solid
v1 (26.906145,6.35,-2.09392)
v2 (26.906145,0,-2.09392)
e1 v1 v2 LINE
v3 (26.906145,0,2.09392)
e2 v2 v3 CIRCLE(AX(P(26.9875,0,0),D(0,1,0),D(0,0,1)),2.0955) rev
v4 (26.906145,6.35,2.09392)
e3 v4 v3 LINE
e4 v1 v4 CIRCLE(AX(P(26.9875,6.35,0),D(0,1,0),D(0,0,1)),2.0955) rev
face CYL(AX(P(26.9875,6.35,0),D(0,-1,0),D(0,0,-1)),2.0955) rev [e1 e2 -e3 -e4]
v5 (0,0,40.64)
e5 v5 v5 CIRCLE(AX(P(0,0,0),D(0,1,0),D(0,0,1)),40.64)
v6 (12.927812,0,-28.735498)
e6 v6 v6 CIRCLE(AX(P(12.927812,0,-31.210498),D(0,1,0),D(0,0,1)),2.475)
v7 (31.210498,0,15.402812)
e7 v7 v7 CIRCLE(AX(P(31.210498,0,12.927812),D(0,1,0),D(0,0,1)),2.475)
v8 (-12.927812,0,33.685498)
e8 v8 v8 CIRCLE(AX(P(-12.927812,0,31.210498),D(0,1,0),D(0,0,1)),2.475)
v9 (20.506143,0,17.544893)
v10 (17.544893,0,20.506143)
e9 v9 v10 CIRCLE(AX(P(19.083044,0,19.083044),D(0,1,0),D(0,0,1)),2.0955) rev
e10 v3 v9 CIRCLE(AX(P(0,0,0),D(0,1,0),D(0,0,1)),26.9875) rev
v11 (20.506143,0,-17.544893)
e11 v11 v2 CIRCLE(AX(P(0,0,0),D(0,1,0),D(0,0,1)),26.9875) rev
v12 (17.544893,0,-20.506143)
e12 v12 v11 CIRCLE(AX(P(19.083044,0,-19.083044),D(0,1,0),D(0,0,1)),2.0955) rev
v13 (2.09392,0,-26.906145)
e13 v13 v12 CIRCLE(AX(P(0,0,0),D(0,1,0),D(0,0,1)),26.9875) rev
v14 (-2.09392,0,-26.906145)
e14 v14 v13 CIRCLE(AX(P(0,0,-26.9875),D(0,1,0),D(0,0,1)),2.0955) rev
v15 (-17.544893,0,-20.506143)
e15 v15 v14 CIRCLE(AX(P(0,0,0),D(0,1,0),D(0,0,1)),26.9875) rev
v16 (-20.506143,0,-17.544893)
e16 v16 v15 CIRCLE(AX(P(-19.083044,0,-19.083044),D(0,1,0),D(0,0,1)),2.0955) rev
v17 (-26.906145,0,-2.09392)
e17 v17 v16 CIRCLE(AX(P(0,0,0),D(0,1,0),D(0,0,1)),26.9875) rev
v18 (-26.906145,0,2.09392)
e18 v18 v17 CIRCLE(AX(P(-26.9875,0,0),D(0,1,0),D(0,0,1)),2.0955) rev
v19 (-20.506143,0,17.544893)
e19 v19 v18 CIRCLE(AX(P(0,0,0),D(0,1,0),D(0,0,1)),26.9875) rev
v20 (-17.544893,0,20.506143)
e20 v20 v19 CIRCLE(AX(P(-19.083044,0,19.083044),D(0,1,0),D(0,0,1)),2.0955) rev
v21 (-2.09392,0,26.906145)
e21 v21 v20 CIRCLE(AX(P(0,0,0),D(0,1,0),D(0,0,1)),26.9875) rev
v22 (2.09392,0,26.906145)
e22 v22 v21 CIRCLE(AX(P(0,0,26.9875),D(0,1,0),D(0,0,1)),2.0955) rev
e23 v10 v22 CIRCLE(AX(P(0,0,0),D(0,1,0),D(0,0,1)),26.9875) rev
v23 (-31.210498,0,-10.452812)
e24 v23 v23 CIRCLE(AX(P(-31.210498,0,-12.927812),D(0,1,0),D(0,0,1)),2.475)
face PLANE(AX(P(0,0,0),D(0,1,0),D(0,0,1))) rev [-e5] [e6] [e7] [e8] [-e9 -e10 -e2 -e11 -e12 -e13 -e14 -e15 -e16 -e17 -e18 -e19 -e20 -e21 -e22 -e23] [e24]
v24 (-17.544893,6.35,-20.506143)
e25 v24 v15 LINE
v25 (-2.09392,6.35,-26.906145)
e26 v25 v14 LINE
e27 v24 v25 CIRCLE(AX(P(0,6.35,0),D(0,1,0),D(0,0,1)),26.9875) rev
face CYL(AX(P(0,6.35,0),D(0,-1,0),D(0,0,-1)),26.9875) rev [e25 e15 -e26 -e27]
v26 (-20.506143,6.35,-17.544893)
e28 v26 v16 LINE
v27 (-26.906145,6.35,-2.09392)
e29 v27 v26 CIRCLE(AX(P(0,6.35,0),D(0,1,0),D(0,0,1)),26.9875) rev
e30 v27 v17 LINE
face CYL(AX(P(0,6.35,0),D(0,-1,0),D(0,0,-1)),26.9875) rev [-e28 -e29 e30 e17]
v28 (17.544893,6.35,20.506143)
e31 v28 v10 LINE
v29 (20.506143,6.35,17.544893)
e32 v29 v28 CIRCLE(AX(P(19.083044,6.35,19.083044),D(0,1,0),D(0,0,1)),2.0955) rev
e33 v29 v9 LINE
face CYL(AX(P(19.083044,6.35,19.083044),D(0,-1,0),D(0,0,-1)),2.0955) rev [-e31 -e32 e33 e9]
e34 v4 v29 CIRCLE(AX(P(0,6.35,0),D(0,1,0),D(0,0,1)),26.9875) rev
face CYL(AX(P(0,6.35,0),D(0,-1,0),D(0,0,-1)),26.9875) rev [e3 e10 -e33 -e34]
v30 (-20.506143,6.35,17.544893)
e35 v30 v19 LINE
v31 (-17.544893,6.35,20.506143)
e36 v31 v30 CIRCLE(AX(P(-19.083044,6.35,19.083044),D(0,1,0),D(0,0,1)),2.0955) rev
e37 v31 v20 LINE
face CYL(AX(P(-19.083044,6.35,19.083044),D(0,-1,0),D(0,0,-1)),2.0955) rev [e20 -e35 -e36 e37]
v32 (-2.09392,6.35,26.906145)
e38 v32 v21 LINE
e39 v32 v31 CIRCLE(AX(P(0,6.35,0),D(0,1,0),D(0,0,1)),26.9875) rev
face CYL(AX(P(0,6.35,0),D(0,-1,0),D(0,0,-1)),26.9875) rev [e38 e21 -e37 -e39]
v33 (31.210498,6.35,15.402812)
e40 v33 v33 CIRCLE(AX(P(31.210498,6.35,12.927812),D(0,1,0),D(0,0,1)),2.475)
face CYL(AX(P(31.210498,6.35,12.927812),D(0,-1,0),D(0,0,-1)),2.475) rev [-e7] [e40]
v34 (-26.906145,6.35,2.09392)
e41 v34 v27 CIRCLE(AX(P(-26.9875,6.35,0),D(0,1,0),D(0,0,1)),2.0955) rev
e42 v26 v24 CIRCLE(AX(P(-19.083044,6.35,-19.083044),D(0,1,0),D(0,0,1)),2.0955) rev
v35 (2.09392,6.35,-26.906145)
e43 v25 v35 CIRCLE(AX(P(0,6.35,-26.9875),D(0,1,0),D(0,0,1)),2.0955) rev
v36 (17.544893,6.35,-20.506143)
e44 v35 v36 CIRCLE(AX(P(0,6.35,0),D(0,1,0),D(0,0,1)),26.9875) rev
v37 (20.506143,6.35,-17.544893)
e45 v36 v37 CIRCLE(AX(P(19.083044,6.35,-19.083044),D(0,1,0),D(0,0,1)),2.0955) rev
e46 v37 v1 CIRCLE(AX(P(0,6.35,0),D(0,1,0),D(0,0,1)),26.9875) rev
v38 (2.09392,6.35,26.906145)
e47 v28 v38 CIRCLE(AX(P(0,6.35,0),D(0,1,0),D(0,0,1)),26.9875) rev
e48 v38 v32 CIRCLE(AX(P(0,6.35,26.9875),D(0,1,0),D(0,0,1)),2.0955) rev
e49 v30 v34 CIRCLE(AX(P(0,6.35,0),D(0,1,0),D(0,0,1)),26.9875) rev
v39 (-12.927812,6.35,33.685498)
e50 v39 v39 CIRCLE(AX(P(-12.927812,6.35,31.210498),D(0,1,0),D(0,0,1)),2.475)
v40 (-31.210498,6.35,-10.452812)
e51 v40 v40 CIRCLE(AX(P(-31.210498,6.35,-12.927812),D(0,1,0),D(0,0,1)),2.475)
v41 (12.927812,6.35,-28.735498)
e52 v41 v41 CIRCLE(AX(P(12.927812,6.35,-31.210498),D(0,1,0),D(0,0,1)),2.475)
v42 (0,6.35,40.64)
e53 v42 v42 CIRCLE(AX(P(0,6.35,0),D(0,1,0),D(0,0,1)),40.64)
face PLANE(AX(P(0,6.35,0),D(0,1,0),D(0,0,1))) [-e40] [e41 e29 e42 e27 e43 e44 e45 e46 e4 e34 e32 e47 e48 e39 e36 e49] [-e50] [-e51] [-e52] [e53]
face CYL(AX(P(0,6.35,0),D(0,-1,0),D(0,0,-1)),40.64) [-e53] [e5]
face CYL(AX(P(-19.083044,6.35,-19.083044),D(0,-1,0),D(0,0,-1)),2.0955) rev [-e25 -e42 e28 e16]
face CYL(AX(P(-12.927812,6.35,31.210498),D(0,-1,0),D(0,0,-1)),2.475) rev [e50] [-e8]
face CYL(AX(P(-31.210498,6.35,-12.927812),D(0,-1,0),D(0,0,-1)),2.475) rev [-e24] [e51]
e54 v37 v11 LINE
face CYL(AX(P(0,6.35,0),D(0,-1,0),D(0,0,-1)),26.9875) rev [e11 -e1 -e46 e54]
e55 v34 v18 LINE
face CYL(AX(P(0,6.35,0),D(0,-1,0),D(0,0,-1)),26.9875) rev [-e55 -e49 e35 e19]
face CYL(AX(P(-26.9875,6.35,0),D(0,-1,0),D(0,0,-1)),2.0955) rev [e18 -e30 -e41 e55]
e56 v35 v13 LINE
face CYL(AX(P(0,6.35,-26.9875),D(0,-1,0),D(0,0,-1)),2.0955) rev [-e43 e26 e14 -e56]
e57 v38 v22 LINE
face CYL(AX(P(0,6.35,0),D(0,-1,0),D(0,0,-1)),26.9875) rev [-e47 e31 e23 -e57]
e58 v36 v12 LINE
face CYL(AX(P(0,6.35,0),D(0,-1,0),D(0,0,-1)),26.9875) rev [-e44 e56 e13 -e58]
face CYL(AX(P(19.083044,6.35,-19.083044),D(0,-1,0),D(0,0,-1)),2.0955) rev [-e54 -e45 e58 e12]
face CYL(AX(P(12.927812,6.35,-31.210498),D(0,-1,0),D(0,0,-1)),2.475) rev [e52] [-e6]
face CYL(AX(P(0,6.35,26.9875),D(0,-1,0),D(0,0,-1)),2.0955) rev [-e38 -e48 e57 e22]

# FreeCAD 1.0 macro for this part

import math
import FreeCAD as App
import Part
import Sketcher

V = App.Vector
Q = App.Units.Quantity

doc = App.newDocument("Part")
body = doc.addObject("PartDesign::Body", "Body")

# Sketch on XZ plane
sketch1 = body.newObject("Sketcher::SketchObject", "Sketch")
sketch1.AttachmentSupport = (doc.getObject("XZ_Plane"), [""])
sketch1.MapMode = "FlatFace"
sketch1.addGeometry([
    Part.Circle(V(0, 0, 0), V(0, 0, 1), 40.6),  # 0
    Part.Circle(V(-31.2, -12.9, 0), V(0, 0, 1), 2.5),  # 1
    Part.Circle(V(-12.9, 31.2, 0), V(0, 0, 1), 2.5),  # 2
    Part.Circle(V(12.9, -31.2, 0), V(0, 0, 1), 2.5),  # 3
    Part.ArcOfCircle(Part.Circle(V(0, 0, 0), V(0, 0, 1), 27), math.radians(-176), math.radians(-139)),  # 4
    Part.ArcOfCircle(Part.Circle(V(-19.1, -19.1, 0), V(0, 0, 1), 2.1), math.radians(133), math.radians(317)),  # 5
    Part.ArcOfCircle(Part.Circle(V(0, 0, 0), V(0, 0, 1), 27), math.radians(-131), math.radians(-94)),  # 6
    Part.ArcOfCircle(Part.Circle(V(0, -27, 0), V(0, 0, 1), 2.1), math.radians(178), math.radians(362)),  # 7
    Part.ArcOfCircle(Part.Circle(V(0, 0, 0), V(0, 0, 1), 27), math.radians(-86), math.radians(-49)),  # 8
    Part.ArcOfCircle(Part.Circle(V(19.1, -19.1, 0), V(0, 0, 1), 2.1), math.radians(-137), math.radians(47)),  # 9
    Part.ArcOfCircle(Part.Circle(V(0, 0, 0), V(0, 0, 1), 27), math.radians(-41), math.radians(-4)),  # 10
    Part.ArcOfCircle(Part.Circle(V(27, 0, 0), V(0, 0, 1), 2.1), math.radians(-92), math.radians(92)),  # 11
    Part.ArcOfCircle(Part.Circle(V(0, 0, 0), V(0, 0, 1), 27), math.radians(4), math.radians(41)),  # 12
    Part.ArcOfCircle(Part.Circle(V(19.1, 19.1, 0), V(0, 0, 1), 2.1), math.radians(-47), math.radians(137)),  # 13
    Part.ArcOfCircle(Part.Circle(V(0, 0, 0), V(0, 0, 1), 27), math.radians(49), math.radians(86)),  # 14
    Part.ArcOfCircle(Part.Circle(V(0, 27, 0), V(0, 0, 1), 2.1), math.radians(-2), math.radians(182)),  # 15
    Part.ArcOfCircle(Part.Circle(V(0, 0, 0), V(0, 0, 1), 27), math.radians(94), math.radians(131)),  # 16
    Part.ArcOfCircle(Part.Circle(V(-19.1, 19.1, 0), V(0, 0, 1), 2.1), math.radians(43), math.radians(227)),  # 17
    Part.ArcOfCircle(Part.Circle(V(0, 0, 0), V(0, 0, 1), 27), math.radians(139), math.radians(176)),  # 18
    Part.ArcOfCircle(Part.Circle(V(-27, 0, 0), V(0, 0, 1), 2.1), math.radians(88), math.radians(272)),  # 19
    Part.Circle(V(31.2, 12.9, 0), V(0, 0, 1), 2.5),  # 20
], False)
sketch1.addConstraint([
    Sketcher.Constraint("Coincident", 4, 2, 5, 1),
    Sketcher.Constraint("Coincident", 5, 2, 6, 1),
    Sketcher.Constraint("Coincident", 6, 2, 7, 1),
    Sketcher.Constraint("Coincident", 7, 2, 8, 1),
    Sketcher.Constraint("Coincident", 8, 2, 9, 1),
    Sketcher.Constraint("Coincident", 9, 2, 10, 1),
    Sketcher.Constraint("Coincident", 10, 2, 11, 1),
    Sketcher.Constraint("Coincident", 11, 2, 12, 1),
    Sketcher.Constraint("Coincident", 12, 2, 13, 1),
    Sketcher.Constraint("Coincident", 13, 2, 14, 1),
    Sketcher.Constraint("Coincident", 14, 2, 15, 1),
    Sketcher.Constraint("Coincident", 15, 2, 16, 1),
    Sketcher.Constraint("Coincident", 16, 2, 17, 1),
    Sketcher.Constraint("Coincident", 17, 2, 18, 1),
    Sketcher.Constraint("Coincident", 18, 2, 19, 1),
    Sketcher.Constraint("Coincident", 19, 2, 4, 1),
    Sketcher.Constraint("Coincident", 0, 3, -1, 1),
    Sketcher.Constraint("Coincident", 4, 3, -1, 1),
    Sketcher.Constraint("Coincident", 6, 3, -1, 1),
    Sketcher.Constraint("Coincident", 8, 3, -1, 1),
    Sketcher.Constraint("Coincident", 10, 3, -1, 1),
    Sketcher.Constraint("Coincident", 12, 3, -1, 1),
    Sketcher.Constraint("Coincident", 14, 3, -1, 1),
    Sketcher.Constraint("Coincident", 16, 3, -1, 1),
    Sketcher.Constraint("Coincident", 18, 3, -1, 1),
    Sketcher.Constraint("Equal", 1, 2),
    Sketcher.Constraint("Equal", 2, 3),
    Sketcher.Constraint("Equal", 4, 6),
    Sketcher.Constraint("Equal", 5, 7),
    Sketcher.Constraint("Equal", 6, 8),
    Sketcher.Constraint("Equal", 7, 9),
    Sketcher.Constraint("Equal", 8, 10),
    Sketcher.Constraint("Equal", 9, 11),
    Sketcher.Constraint("Equal", 10, 12),
    Sketcher.Constraint("Equal", 11, 13),
    Sketcher.Constraint("Equal", 12, 14),
    Sketcher.Constraint("Equal", 13, 15),
    Sketcher.Constraint("Equal", 14, 16),
    Sketcher.Constraint("Equal", 15, 17),
    Sketcher.Constraint("Equal", 16, 18),
    Sketcher.Constraint("Equal", 17, 19),
    Sketcher.Constraint("Equal", 3, 20),
    Sketcher.Constraint("Symmetric", 2, 3, 3, 3, -1, 1),
    Sketcher.Constraint("Symmetric", 5, 3, 13, 3, -1, 1),
    Sketcher.Constraint("Symmetric", 7, 3, 15, 3, -1, 1),
    Sketcher.Constraint("Symmetric", 9, 3, 17, 3, -1, 1),
    Sketcher.Constraint("Symmetric", 11, 3, 19, 3, -1, 1),
    Sketcher.Constraint("Symmetric", 1, 3, 20, 3, -1, 1),
    Sketcher.Constraint("Symmetric", 5, 3, 9, 3, -2),
    Sketcher.Constraint("PointOnObject", 7, 3, -2),
    Sketcher.Constraint("PointOnObject", 11, 3, -1),
    Sketcher.Constraint("Diameter", 0, Q("3.2 in")),
    Sketcher.Constraint("Radius", 4, Q("1.0625 in")),
    Sketcher.Constraint("Radius", 5, Q("0.0825 in")),
    Sketcher.Constraint("Diameter", 1, 4.95),
    Sketcher.Constraint("DistanceY", 7, 3, -1, 1, Q("1.0625 in")),
    Sketcher.Constraint("DistanceX", -1, 1, 11, 3, Q("1.0625 in")),
    Sketcher.Constraint("DistanceX", 1, 3, -1, 1, 31.210498),
    Sketcher.Constraint("DistanceY", -1, 1, 2, 3, 31.210498),
    Sketcher.Constraint("DistanceX", 4, 2, 5, 3, 1.423099),
    Sketcher.Constraint("DistanceY", 5, 2, 5, 3, 1.423099),
    Sketcher.Constraint("DistanceY", 1, 3, -1, 1, 12.927812),
    Sketcher.Constraint("DistanceX", 2, 3, -1, 1, 12.927812),
])
pad1 = body.newObject("PartDesign::Pad", "Pad")
pad1.Profile = sketch1
pad1.Length = Q("0.25 in")
pad1.Reversed = True

doc.recompute()
